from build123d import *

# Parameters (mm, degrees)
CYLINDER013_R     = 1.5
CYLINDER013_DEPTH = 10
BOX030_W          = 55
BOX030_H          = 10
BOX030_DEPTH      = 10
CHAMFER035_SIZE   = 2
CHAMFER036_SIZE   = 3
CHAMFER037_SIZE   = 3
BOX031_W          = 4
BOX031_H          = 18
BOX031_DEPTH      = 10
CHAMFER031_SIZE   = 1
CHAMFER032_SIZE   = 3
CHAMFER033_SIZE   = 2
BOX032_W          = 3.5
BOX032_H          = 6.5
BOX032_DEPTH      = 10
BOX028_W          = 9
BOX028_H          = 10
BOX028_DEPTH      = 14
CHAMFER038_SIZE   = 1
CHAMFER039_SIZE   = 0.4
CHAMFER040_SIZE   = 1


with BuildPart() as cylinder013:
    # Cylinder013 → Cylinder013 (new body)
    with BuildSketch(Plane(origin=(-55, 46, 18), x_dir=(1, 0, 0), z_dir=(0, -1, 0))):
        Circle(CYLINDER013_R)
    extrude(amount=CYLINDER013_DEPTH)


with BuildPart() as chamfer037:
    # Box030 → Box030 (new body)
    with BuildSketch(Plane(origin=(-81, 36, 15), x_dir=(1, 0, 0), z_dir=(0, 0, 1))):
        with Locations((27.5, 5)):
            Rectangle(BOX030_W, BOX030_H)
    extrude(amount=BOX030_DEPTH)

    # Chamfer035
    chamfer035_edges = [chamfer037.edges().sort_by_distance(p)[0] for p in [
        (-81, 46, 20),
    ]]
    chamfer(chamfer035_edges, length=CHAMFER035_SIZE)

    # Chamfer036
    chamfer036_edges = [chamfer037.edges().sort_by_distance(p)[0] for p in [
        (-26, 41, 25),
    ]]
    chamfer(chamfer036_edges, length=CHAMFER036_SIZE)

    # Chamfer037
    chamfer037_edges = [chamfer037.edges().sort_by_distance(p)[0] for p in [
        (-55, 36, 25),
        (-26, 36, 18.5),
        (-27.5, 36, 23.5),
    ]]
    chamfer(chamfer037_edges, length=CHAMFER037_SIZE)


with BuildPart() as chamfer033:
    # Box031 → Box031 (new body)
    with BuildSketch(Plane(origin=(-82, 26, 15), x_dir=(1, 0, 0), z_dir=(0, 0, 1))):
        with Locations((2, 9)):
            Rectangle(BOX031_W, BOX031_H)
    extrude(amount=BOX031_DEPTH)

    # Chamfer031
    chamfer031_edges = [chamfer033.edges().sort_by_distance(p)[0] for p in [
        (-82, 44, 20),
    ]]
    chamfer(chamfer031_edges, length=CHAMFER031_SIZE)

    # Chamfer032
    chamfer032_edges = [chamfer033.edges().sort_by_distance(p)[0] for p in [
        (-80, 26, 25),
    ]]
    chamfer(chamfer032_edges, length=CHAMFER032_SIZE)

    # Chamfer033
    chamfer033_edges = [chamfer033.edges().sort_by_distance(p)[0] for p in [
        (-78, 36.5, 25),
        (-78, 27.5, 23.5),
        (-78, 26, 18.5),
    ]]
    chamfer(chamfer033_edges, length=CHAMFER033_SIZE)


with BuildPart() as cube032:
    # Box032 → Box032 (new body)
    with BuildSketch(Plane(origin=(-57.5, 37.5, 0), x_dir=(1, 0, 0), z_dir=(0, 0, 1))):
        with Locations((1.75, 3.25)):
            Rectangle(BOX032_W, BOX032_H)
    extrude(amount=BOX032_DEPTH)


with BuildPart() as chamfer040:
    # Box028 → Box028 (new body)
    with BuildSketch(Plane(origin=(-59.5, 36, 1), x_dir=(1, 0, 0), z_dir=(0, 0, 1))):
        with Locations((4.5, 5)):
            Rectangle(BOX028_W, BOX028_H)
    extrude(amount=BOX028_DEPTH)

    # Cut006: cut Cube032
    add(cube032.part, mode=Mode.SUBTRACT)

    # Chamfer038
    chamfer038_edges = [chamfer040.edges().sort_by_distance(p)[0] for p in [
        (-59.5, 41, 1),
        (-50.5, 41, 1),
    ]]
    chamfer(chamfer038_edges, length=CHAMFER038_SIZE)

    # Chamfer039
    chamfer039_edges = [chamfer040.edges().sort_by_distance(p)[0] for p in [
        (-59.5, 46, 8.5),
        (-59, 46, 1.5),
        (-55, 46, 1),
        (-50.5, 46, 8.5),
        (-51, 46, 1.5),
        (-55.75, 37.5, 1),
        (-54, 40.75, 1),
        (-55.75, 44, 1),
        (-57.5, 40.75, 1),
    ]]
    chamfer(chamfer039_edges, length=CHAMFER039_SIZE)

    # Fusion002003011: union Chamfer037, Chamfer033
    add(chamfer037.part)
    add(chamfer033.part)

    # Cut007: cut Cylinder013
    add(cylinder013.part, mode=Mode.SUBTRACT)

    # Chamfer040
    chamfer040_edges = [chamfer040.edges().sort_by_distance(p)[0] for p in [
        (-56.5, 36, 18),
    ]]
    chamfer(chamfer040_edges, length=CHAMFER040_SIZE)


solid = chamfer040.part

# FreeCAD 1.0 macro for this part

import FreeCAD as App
import Part
import Sketcher
Q = App.Units.Quantity


def edges_at(feature, points):
    """Names of the edges that pass closest to the given points."""
    edges = feature.Shape.Edges
    near = lambda p: min(range(len(edges)), key=lambda i: edges[i].distToShape(Part.Vertex(*p))[0])
    return sorted({f"Edge{near(p) + 1}" for p in points})


def add_polygon(sketch, points):
    """Adds a closed chain of lines whose ends are joined by coincident constraints."""
    first, n = sketch.GeometryCount, len(points)
    for a, b in zip(points, points[1:] + points[:1]):
        sketch.addGeometry(Part.LineSegment(App.Vector(*a, 0), App.Vector(*b, 0)), False)
    for i in range(n):
        sketch.addConstraint(Sketcher.Constraint("Coincident", first + i, 2, first + (i + 1) % n, 1))

doc = App.newDocument("Part")
params = doc.addObject("Spreadsheet::Sheet", "Params")
for row, (alias, value) in enumerate([
    ("sketch1_diameter", "3 mm"),
    ("pad1_length", "10 mm"),
    ("sketch2_width", "55 mm"),
    ("sketch2_height", "10 mm"),
    ("pad2_length", "10 mm"),
    ("chamfer_size", "2 mm"),
    ("chamfer2_size", "3 mm"),
    ("chamfer3_size", "3 mm"),
    ("sketch3_width", "4 mm"),
    ("sketch3_height", "18 mm"),
    ("pad3_length", "10 mm"),
    ("chamfer4_size", "1 mm"),
    ("chamfer5_size", "3 mm"),
    ("chamfer6_size", "2 mm"),
    ("sketch4_width", "3.5 mm"),
    ("sketch4_height", "6.5 mm"),
    ("pad4_length", "10 mm"),
    ("sketch5_width", "9 mm"),
    ("sketch5_height", "10 mm"),
    ("pad5_length", "14 mm"),
    ("chamfer7_size", "1 mm"),
    ("chamfer8_size", "0.4 mm"),
    ("chamfer9_size", "1 mm"),
], start=1):
    params.set(f"A{row}", alias)
    params.set(f"B{row}", "=" + value)
    params.setAlias(f"B{row}", alias)

body = doc.addObject("PartDesign::Body", "Body")

sketch1 = doc.addObject("Sketcher::SketchObject", "Sketch")
body.addObject(sketch1)
sketch1.AttachmentSupport = (doc.XZ_Plane, [""])
sketch1.MapMode = "FlatFace"
sketch1.AttachmentOffset = App.Placement(App.Vector(0, 0, -46), App.Rotation())
sketch1.addGeometry(Part.Circle(App.Vector(-55, 18, 0), App.Vector(0, 0, 1), 1.5), False)
sketch1.addConstraint([
    Sketcher.Constraint("Diameter", 0, Q("3 mm")),
    Sketcher.Constraint("DistanceX", 0, 3, -1, 1, Q("55 mm")),
    Sketcher.Constraint("DistanceY", -1, 1, 0, 3, Q("18 mm")),
])
sketch1.setExpression("Constraints[0]", "Params.sketch1_diameter")
pad1 = doc.addObject("PartDesign::Pad", "Pad")
body.addObject(pad1)
pad1.Profile = sketch1
pad1.setExpression("Length", "Params.pad1_length")
body2 = doc.addObject("PartDesign::Body", "Body001")

sketch2 = doc.addObject("Sketcher::SketchObject", "Sketch001")
body2.addObject(sketch2)
sketch2.AttachmentSupport = (doc.getObject("XY_Plane001"), [""])
sketch2.MapMode = "FlatFace"
sketch2.AttachmentOffset = App.Placement(App.Vector(0, 0, 15), App.Rotation())
add_polygon(sketch2, [(-81, 46), (-81, 36), (-26, 36), (-26, 46)])
sketch2.addConstraint([
    Sketcher.Constraint("Vertical", 0),
    Sketcher.Constraint("Horizontal", 1),
    Sketcher.Constraint("Vertical", 2),
    Sketcher.Constraint("Horizontal", 3),
    Sketcher.Constraint("DistanceX", 1, 1, 1, 2, Q("55 mm")),
    Sketcher.Constraint("DistanceY", 0, 2, 0, 1, Q("10 mm")),
    Sketcher.Constraint("DistanceX", 0, 2, -1, 1, Q("81 mm")),
    Sketcher.Constraint("DistanceY", -1, 1, 0, 2, Q("36 mm")),
])
sketch2.setExpression("Constraints[8]", "Params.sketch2_width")
sketch2.setExpression("Constraints[9]", "Params.sketch2_height")
pad2 = doc.addObject("PartDesign::Pad", "Pad001")
body2.addObject(pad2)
pad2.Profile = sketch2
pad2.setExpression("Length", "Params.pad2_length")
doc.recompute()

chamfer = doc.addObject("PartDesign::Chamfer", "Chamfer")
body2.addObject(chamfer)
chamfer.Base = (pad2, edges_at(pad2, [(-81, 46, 20)]))
chamfer.setExpression("Size", "Params.chamfer_size")
doc.recompute()

chamfer2 = doc.addObject("PartDesign::Chamfer", "Chamfer001")
body2.addObject(chamfer2)
chamfer2.Base = (chamfer, edges_at(chamfer, [(-26, 41, 25)]))
chamfer2.setExpression("Size", "Params.chamfer2_size")
doc.recompute()

chamfer3 = doc.addObject("PartDesign::Chamfer", "Chamfer002")
body2.addObject(chamfer3)
chamfer3.Base = (chamfer2, edges_at(chamfer2, [(-55, 36, 25), (-26, 36, 18.5), (-27.5, 36, 23.5)]))
chamfer3.setExpression("Size", "Params.chamfer3_size")
body3 = doc.addObject("PartDesign::Body", "Body002")

sketch3 = doc.addObject("Sketcher::SketchObject", "Sketch002")
body3.addObject(sketch3)
sketch3.AttachmentSupport = (doc.getObject("XY_Plane002"), [""])
sketch3.MapMode = "FlatFace"
sketch3.AttachmentOffset = App.Placement(App.Vector(0, 0, 15), App.Rotation())
add_polygon(sketch3, [(-82, 44), (-82, 26), (-78, 26), (-78, 44)])
sketch3.addConstraint([
    Sketcher.Constraint("Vertical", 0),
    Sketcher.Constraint("Horizontal", 1),
    Sketcher.Constraint("Vertical", 2),
    Sketcher.Constraint("Horizontal", 3),
    Sketcher.Constraint("DistanceX", 1, 1, 1, 2, Q("4 mm")),
    Sketcher.Constraint("DistanceY", 0, 2, 0, 1, Q("18 mm")),
    Sketcher.Constraint("DistanceX", 0, 2, -1, 1, Q("82 mm")),
    Sketcher.Constraint("DistanceY", -1, 1, 0, 2, Q("26 mm")),
])
sketch3.setExpression("Constraints[8]", "Params.sketch3_width")
sketch3.setExpression("Constraints[9]", "Params.sketch3_height")
pad3 = doc.addObject("PartDesign::Pad", "Pad002")
body3.addObject(pad3)
pad3.Profile = sketch3
pad3.setExpression("Length", "Params.pad3_length")
doc.recompute()

chamfer4 = doc.addObject("PartDesign::Chamfer", "Chamfer003")
body3.addObject(chamfer4)
chamfer4.Base = (pad3, edges_at(pad3, [(-82, 44, 20)]))
chamfer4.setExpression("Size", "Params.chamfer4_size")
doc.recompute()

chamfer5 = doc.addObject("PartDesign::Chamfer", "Chamfer004")
body3.addObject(chamfer5)
chamfer5.Base = (chamfer4, edges_at(chamfer4, [(-80, 26, 25)]))
chamfer5.setExpression("Size", "Params.chamfer5_size")
doc.recompute()

chamfer6 = doc.addObject("PartDesign::Chamfer", "Chamfer005")
body3.addObject(chamfer6)
chamfer6.Base = (chamfer5, edges_at(chamfer5, [(-78, 36.5, 25), (-78, 27.5, 23.5), (-78, 26, 18.5)]))
chamfer6.setExpression("Size", "Params.chamfer6_size")
body4 = doc.addObject("PartDesign::Body", "Body003")

sketch4 = doc.addObject("Sketcher::SketchObject", "Sketch003")
body4.addObject(sketch4)
sketch4.AttachmentSupport = (doc.getObject("XY_Plane003"), [""])
sketch4.MapMode = "FlatFace"
add_polygon(sketch4, [(-57.5, 44), (-57.5, 37.5), (-54, 37.5), (-54, 44)])
sketch4.addConstraint([
    Sketcher.Constraint("Vertical", 0),
    Sketcher.Constraint("Horizontal", 1),
    Sketcher.Constraint("Vertical", 2),
    Sketcher.Constraint("Horizontal", 3),
    Sketcher.Constraint("DistanceX", 1, 1, 1, 2, Q("3.5 mm")),
    Sketcher.Constraint("DistanceY", 0, 2, 0, 1, Q("6.5 mm")),
    Sketcher.Constraint("DistanceX", 1, 2, -1, 1, Q("54 mm")),
    Sketcher.Constraint("DistanceY", -1, 1, 2, 2, Q("44 mm")),
])
sketch4.setExpression("Constraints[8]", "Params.sketch4_width")
sketch4.setExpression("Constraints[9]", "Params.sketch4_height")
pad4 = doc.addObject("PartDesign::Pad", "Pad003")
body4.addObject(pad4)
pad4.Profile = sketch4
pad4.setExpression("Length", "Params.pad4_length")
body5 = doc.addObject("PartDesign::Body", "Body004")

sketch5 = doc.addObject("Sketcher::SketchObject", "Sketch004")
body5.addObject(sketch5)
sketch5.AttachmentSupport = (doc.getObject("XY_Plane004"), [""])
sketch5.MapMode = "FlatFace"
sketch5.AttachmentOffset = App.Placement(App.Vector(0, 0, 1), App.Rotation())
add_polygon(sketch5, [(-59.5, 46), (-59.5, 36), (-50.5, 36), (-50.5, 46)])
sketch5.addConstraint([
    Sketcher.Constraint("Vertical", 0),
    Sketcher.Constraint("Horizontal", 1),
    Sketcher.Constraint("Vertical", 2),
    Sketcher.Constraint("Horizontal", 3),
    Sketcher.Constraint("DistanceX", 1, 1, 1, 2, Q("9 mm")),
    Sketcher.Constraint("DistanceY", 0, 2, 0, 1, Q("10 mm")),
    Sketcher.Constraint("DistanceY", -1, 1, 0, 2, Q("36 mm")),
    Sketcher.Constraint("DistanceX", 0, 2, -1, 1, Q("59.5 mm")),
])
sketch5.setExpression("Constraints[8]", "Params.sketch5_width")
sketch5.setExpression("Constraints[9]", "Params.sketch5_height")
pad5 = doc.addObject("PartDesign::Pad", "Pad004")
body5.addObject(pad5)
pad5.Profile = sketch5
pad5.setExpression("Length", "Params.pad5_length")
doc.recompute()

boolean = doc.addObject("PartDesign::Boolean", "Boolean")
body5.addObject(boolean)
boolean.Type = "Cut"
boolean.addObjects([body4])
doc.recompute()

chamfer7 = doc.addObject("PartDesign::Chamfer", "Chamfer006")
body5.addObject(chamfer7)
chamfer7.Base = (boolean, edges_at(boolean, [(-59.5, 41, 1), (-50.5, 41, 1)]))
chamfer7.setExpression("Size", "Params.chamfer7_size")
doc.recompute()

chamfer8 = doc.addObject("PartDesign::Chamfer", "Chamfer007")
body5.addObject(chamfer8)
chamfer8.Base = (chamfer7, edges_at(chamfer7, [
    (-59.5, 46, 8.5),
    (-59, 46, 1.5),
    (-55, 46, 1),
    (-50.5, 46, 8.5),
    (-51, 46, 1.5),
    (-55.75, 37.5, 1),
    (-54, 40.75, 1),
    (-55.75, 44, 1),
    (-57.5, 40.75, 1),
]))
chamfer8.setExpression("Size", "Params.chamfer8_size")
doc.recompute()

boolean2 = doc.addObject("PartDesign::Boolean", "Boolean001")
body5.addObject(boolean2)
boolean2.Type = "Fuse"
boolean2.addObjects([body2])
doc.recompute()

boolean3 = doc.addObject("PartDesign::Boolean", "Boolean002")
body5.addObject(boolean3)
boolean3.Type = "Fuse"
boolean3.addObjects([body3])
doc.recompute()

boolean4 = doc.addObject("PartDesign::Boolean", "Boolean003")
body5.addObject(boolean4)
boolean4.Type = "Cut"
boolean4.addObjects([body])
doc.recompute()

chamfer9 = doc.addObject("PartDesign::Chamfer", "Chamfer008")
body5.addObject(chamfer9)
chamfer9.Base = (boolean4, edges_at(boolean4, [(-56.5, 36, 18)]))
chamfer9.setExpression("Size", "Params.chamfer9_size")

doc.recompute()
